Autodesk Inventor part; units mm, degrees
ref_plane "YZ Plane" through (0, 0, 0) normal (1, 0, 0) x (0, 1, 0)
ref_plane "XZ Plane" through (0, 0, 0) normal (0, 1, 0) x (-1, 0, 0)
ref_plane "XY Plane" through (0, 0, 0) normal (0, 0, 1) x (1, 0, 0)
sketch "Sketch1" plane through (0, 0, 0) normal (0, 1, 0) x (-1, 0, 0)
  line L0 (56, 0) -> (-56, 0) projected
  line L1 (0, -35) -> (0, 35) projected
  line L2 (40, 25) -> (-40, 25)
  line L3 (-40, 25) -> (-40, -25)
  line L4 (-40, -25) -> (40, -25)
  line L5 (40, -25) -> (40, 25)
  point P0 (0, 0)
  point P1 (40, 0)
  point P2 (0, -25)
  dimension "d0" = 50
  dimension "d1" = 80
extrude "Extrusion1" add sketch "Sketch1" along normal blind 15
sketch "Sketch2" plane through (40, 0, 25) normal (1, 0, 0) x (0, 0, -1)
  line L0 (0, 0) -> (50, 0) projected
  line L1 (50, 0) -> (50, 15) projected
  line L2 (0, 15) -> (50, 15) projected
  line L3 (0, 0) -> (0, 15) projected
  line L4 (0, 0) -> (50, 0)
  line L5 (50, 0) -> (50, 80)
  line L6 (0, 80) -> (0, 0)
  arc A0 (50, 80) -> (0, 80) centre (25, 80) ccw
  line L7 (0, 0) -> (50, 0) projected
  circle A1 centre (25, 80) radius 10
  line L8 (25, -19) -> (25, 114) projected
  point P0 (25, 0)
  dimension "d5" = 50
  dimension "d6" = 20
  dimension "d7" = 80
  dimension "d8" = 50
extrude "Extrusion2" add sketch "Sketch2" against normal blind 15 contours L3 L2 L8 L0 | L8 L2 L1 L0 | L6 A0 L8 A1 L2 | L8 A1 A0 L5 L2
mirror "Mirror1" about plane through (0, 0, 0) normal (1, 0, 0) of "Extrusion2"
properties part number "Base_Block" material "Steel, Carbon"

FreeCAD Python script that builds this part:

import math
import FreeCAD as App
import Part
import Sketcher
from FreeCAD import Vector
Q = App.Units.Quantity


def add_polygon(sketch, points):
    """Adds a closed chain of lines whose ends are joined by coincident constraints."""
    first, n = sketch.GeometryCount, len(points)
    for a, b in zip(points, points[1:] + points[:1]):
        sketch.addGeometry(Part.LineSegment(App.Vector(*a, 0), App.Vector(*b, 0)), False)
    for i in range(n):
        sketch.addConstraint(Sketcher.Constraint("Coincident", first + i, 2, first + (i + 1) % n, 1))

doc = App.newDocument("Part")
params = doc.addObject("Spreadsheet::Sheet", "Params")
for row, (alias, value) in enumerate([
    ("sketch1_width", "80 mm"),
    ("sketch1_height", "50 mm"),
    ("pad1_length", "15 mm"),
    ("sketch2_diameter", "20 mm"),
    ("sketch2_radius", "25 mm"),
    ("sketch2_width", "80 mm"),
    ("pad2_length", "15 mm"),
], start=1):
    params.set(f"A{row}", alias)
    params.set(f"B{row}", "=" + value)
    params.setAlias(f"B{row}", alias)

body = doc.addObject("PartDesign::Body", "Body")

sketch1 = body.newObject("Sketcher::SketchObject", "Sketch")
sketch1.AttachmentSupport = (doc.getObject("XZ_Plane"), [""])
sketch1.MapMode = "FlatFace"
add_polygon(sketch1, [(-40, -25), (-40, 25), (40, 25), (40, -25)])
sketch1.addConstraint(Sketcher.Constraint("Vertical", 0))
sketch1.addConstraint(Sketcher.Constraint("Horizontal", 1))
sketch1.addConstraint(Sketcher.Constraint("Vertical", 2))
sketch1.addConstraint(Sketcher.Constraint("Horizontal", 3))
sketch1.addConstraint(Sketcher.Constraint("Symmetric", 0, 2, 2, 2, -1, 1))
sketch1.addConstraint(Sketcher.Constraint("DistanceX", 1, 1, 1, 2, Q("80 mm")))
sketch1.addConstraint(Sketcher.Constraint("DistanceY", 0, 1, 0, 2, Q("50 mm")))
sketch1.setExpression("Constraints[9]", "Params.sketch1_width")
sketch1.setExpression("Constraints[10]", "Params.sketch1_height")
pad1 = body.newObject("PartDesign::Pad", "Pad")
pad1.Profile = sketch1
pad1.setExpression("Length", "Params.pad1_length")
pad1.Reversed = True

sketch2 = body.newObject("Sketcher::SketchObject", "Sketch001")
sketch2.AttachmentSupport = (doc.getObject("YZ_Plane"), [""])
sketch2.MapMode = "FlatFace"
sketch2.AttachmentOffset = App.Placement(Vector(0, 0, 40), App.Rotation())
sketch2.addGeometry(Part.LineSegment(Vector(0, 25, 0), Vector(0, -25, 0)), False)
sketch2.addGeometry(Part.LineSegment(Vector(0, -25, 0), Vector(80, -25, 0)), False)
sketch2.addGeometry(Part.ArcOfCircle(Part.Circle(Vector(80, 0, 0), Vector(0, 0, 1), 25), math.radians(-90), math.radians(90)), False)
sketch2.addGeometry(Part.LineSegment(Vector(80, 25, 0), Vector(0, 25, 0)), False)
sketch2.addGeometry(Part.Circle(Vector(80, 0, 0), Vector(0, 0, 1), 10), False)
sketch2.addConstraint(Sketcher.Constraint("Coincident", 0, 2, 1, 1))
sketch2.addConstraint(Sketcher.Constraint("Tangent", 1, 2, 2, 1))
sketch2.addConstraint(Sketcher.Constraint("Tangent", 2, 2, 3, 1))
sketch2.addConstraint(Sketcher.Constraint("Coincident", 3, 2, 0, 1))
sketch2.addConstraint(Sketcher.Constraint("Vertical", 0))
sketch2.addConstraint(Sketcher.Constraint("Horizontal", 1))
sketch2.addConstraint(Sketcher.Constraint("Horizontal", 3))
sketch2.addConstraint(Sketcher.Constraint("Coincident", 4, 3, 2, 3))
sketch2.addConstraint(Sketcher.Constraint("Symmetric", 0, 2, 3, 2, -1, 1))
sketch2.addConstraint(Sketcher.Constraint("Diameter", 4, Q("20 mm")))
sketch2.addConstraint(Sketcher.Constraint("Radius", 2, Q("25 mm")))
sketch2.addConstraint(Sketcher.Constraint("DistanceX", 1, 1, 1, 2, Q("80 mm")))
sketch2.setExpression("Constraints[9]", "Params.sketch2_diameter")
sketch2.setExpression("Constraints[10]", "Params.sketch2_radius")
sketch2.setExpression("Constraints[11]", "Params.sketch2_width")
pad2 = body.newObject("PartDesign::Pad", "Pad001")
pad2.Profile = sketch2
pad2.setExpression("Length", "Params.pad2_length")
pad2.Reversed = True
doc.recompute()

mirrored = body.newObject("PartDesign::Mirrored", "Mirrored")
mirrored.Originals = [pad2]
mirrored.MirrorPlane = (doc.getObject("YZ_Plane"), [""])
body.Tip = mirrored

doc.recompute()
